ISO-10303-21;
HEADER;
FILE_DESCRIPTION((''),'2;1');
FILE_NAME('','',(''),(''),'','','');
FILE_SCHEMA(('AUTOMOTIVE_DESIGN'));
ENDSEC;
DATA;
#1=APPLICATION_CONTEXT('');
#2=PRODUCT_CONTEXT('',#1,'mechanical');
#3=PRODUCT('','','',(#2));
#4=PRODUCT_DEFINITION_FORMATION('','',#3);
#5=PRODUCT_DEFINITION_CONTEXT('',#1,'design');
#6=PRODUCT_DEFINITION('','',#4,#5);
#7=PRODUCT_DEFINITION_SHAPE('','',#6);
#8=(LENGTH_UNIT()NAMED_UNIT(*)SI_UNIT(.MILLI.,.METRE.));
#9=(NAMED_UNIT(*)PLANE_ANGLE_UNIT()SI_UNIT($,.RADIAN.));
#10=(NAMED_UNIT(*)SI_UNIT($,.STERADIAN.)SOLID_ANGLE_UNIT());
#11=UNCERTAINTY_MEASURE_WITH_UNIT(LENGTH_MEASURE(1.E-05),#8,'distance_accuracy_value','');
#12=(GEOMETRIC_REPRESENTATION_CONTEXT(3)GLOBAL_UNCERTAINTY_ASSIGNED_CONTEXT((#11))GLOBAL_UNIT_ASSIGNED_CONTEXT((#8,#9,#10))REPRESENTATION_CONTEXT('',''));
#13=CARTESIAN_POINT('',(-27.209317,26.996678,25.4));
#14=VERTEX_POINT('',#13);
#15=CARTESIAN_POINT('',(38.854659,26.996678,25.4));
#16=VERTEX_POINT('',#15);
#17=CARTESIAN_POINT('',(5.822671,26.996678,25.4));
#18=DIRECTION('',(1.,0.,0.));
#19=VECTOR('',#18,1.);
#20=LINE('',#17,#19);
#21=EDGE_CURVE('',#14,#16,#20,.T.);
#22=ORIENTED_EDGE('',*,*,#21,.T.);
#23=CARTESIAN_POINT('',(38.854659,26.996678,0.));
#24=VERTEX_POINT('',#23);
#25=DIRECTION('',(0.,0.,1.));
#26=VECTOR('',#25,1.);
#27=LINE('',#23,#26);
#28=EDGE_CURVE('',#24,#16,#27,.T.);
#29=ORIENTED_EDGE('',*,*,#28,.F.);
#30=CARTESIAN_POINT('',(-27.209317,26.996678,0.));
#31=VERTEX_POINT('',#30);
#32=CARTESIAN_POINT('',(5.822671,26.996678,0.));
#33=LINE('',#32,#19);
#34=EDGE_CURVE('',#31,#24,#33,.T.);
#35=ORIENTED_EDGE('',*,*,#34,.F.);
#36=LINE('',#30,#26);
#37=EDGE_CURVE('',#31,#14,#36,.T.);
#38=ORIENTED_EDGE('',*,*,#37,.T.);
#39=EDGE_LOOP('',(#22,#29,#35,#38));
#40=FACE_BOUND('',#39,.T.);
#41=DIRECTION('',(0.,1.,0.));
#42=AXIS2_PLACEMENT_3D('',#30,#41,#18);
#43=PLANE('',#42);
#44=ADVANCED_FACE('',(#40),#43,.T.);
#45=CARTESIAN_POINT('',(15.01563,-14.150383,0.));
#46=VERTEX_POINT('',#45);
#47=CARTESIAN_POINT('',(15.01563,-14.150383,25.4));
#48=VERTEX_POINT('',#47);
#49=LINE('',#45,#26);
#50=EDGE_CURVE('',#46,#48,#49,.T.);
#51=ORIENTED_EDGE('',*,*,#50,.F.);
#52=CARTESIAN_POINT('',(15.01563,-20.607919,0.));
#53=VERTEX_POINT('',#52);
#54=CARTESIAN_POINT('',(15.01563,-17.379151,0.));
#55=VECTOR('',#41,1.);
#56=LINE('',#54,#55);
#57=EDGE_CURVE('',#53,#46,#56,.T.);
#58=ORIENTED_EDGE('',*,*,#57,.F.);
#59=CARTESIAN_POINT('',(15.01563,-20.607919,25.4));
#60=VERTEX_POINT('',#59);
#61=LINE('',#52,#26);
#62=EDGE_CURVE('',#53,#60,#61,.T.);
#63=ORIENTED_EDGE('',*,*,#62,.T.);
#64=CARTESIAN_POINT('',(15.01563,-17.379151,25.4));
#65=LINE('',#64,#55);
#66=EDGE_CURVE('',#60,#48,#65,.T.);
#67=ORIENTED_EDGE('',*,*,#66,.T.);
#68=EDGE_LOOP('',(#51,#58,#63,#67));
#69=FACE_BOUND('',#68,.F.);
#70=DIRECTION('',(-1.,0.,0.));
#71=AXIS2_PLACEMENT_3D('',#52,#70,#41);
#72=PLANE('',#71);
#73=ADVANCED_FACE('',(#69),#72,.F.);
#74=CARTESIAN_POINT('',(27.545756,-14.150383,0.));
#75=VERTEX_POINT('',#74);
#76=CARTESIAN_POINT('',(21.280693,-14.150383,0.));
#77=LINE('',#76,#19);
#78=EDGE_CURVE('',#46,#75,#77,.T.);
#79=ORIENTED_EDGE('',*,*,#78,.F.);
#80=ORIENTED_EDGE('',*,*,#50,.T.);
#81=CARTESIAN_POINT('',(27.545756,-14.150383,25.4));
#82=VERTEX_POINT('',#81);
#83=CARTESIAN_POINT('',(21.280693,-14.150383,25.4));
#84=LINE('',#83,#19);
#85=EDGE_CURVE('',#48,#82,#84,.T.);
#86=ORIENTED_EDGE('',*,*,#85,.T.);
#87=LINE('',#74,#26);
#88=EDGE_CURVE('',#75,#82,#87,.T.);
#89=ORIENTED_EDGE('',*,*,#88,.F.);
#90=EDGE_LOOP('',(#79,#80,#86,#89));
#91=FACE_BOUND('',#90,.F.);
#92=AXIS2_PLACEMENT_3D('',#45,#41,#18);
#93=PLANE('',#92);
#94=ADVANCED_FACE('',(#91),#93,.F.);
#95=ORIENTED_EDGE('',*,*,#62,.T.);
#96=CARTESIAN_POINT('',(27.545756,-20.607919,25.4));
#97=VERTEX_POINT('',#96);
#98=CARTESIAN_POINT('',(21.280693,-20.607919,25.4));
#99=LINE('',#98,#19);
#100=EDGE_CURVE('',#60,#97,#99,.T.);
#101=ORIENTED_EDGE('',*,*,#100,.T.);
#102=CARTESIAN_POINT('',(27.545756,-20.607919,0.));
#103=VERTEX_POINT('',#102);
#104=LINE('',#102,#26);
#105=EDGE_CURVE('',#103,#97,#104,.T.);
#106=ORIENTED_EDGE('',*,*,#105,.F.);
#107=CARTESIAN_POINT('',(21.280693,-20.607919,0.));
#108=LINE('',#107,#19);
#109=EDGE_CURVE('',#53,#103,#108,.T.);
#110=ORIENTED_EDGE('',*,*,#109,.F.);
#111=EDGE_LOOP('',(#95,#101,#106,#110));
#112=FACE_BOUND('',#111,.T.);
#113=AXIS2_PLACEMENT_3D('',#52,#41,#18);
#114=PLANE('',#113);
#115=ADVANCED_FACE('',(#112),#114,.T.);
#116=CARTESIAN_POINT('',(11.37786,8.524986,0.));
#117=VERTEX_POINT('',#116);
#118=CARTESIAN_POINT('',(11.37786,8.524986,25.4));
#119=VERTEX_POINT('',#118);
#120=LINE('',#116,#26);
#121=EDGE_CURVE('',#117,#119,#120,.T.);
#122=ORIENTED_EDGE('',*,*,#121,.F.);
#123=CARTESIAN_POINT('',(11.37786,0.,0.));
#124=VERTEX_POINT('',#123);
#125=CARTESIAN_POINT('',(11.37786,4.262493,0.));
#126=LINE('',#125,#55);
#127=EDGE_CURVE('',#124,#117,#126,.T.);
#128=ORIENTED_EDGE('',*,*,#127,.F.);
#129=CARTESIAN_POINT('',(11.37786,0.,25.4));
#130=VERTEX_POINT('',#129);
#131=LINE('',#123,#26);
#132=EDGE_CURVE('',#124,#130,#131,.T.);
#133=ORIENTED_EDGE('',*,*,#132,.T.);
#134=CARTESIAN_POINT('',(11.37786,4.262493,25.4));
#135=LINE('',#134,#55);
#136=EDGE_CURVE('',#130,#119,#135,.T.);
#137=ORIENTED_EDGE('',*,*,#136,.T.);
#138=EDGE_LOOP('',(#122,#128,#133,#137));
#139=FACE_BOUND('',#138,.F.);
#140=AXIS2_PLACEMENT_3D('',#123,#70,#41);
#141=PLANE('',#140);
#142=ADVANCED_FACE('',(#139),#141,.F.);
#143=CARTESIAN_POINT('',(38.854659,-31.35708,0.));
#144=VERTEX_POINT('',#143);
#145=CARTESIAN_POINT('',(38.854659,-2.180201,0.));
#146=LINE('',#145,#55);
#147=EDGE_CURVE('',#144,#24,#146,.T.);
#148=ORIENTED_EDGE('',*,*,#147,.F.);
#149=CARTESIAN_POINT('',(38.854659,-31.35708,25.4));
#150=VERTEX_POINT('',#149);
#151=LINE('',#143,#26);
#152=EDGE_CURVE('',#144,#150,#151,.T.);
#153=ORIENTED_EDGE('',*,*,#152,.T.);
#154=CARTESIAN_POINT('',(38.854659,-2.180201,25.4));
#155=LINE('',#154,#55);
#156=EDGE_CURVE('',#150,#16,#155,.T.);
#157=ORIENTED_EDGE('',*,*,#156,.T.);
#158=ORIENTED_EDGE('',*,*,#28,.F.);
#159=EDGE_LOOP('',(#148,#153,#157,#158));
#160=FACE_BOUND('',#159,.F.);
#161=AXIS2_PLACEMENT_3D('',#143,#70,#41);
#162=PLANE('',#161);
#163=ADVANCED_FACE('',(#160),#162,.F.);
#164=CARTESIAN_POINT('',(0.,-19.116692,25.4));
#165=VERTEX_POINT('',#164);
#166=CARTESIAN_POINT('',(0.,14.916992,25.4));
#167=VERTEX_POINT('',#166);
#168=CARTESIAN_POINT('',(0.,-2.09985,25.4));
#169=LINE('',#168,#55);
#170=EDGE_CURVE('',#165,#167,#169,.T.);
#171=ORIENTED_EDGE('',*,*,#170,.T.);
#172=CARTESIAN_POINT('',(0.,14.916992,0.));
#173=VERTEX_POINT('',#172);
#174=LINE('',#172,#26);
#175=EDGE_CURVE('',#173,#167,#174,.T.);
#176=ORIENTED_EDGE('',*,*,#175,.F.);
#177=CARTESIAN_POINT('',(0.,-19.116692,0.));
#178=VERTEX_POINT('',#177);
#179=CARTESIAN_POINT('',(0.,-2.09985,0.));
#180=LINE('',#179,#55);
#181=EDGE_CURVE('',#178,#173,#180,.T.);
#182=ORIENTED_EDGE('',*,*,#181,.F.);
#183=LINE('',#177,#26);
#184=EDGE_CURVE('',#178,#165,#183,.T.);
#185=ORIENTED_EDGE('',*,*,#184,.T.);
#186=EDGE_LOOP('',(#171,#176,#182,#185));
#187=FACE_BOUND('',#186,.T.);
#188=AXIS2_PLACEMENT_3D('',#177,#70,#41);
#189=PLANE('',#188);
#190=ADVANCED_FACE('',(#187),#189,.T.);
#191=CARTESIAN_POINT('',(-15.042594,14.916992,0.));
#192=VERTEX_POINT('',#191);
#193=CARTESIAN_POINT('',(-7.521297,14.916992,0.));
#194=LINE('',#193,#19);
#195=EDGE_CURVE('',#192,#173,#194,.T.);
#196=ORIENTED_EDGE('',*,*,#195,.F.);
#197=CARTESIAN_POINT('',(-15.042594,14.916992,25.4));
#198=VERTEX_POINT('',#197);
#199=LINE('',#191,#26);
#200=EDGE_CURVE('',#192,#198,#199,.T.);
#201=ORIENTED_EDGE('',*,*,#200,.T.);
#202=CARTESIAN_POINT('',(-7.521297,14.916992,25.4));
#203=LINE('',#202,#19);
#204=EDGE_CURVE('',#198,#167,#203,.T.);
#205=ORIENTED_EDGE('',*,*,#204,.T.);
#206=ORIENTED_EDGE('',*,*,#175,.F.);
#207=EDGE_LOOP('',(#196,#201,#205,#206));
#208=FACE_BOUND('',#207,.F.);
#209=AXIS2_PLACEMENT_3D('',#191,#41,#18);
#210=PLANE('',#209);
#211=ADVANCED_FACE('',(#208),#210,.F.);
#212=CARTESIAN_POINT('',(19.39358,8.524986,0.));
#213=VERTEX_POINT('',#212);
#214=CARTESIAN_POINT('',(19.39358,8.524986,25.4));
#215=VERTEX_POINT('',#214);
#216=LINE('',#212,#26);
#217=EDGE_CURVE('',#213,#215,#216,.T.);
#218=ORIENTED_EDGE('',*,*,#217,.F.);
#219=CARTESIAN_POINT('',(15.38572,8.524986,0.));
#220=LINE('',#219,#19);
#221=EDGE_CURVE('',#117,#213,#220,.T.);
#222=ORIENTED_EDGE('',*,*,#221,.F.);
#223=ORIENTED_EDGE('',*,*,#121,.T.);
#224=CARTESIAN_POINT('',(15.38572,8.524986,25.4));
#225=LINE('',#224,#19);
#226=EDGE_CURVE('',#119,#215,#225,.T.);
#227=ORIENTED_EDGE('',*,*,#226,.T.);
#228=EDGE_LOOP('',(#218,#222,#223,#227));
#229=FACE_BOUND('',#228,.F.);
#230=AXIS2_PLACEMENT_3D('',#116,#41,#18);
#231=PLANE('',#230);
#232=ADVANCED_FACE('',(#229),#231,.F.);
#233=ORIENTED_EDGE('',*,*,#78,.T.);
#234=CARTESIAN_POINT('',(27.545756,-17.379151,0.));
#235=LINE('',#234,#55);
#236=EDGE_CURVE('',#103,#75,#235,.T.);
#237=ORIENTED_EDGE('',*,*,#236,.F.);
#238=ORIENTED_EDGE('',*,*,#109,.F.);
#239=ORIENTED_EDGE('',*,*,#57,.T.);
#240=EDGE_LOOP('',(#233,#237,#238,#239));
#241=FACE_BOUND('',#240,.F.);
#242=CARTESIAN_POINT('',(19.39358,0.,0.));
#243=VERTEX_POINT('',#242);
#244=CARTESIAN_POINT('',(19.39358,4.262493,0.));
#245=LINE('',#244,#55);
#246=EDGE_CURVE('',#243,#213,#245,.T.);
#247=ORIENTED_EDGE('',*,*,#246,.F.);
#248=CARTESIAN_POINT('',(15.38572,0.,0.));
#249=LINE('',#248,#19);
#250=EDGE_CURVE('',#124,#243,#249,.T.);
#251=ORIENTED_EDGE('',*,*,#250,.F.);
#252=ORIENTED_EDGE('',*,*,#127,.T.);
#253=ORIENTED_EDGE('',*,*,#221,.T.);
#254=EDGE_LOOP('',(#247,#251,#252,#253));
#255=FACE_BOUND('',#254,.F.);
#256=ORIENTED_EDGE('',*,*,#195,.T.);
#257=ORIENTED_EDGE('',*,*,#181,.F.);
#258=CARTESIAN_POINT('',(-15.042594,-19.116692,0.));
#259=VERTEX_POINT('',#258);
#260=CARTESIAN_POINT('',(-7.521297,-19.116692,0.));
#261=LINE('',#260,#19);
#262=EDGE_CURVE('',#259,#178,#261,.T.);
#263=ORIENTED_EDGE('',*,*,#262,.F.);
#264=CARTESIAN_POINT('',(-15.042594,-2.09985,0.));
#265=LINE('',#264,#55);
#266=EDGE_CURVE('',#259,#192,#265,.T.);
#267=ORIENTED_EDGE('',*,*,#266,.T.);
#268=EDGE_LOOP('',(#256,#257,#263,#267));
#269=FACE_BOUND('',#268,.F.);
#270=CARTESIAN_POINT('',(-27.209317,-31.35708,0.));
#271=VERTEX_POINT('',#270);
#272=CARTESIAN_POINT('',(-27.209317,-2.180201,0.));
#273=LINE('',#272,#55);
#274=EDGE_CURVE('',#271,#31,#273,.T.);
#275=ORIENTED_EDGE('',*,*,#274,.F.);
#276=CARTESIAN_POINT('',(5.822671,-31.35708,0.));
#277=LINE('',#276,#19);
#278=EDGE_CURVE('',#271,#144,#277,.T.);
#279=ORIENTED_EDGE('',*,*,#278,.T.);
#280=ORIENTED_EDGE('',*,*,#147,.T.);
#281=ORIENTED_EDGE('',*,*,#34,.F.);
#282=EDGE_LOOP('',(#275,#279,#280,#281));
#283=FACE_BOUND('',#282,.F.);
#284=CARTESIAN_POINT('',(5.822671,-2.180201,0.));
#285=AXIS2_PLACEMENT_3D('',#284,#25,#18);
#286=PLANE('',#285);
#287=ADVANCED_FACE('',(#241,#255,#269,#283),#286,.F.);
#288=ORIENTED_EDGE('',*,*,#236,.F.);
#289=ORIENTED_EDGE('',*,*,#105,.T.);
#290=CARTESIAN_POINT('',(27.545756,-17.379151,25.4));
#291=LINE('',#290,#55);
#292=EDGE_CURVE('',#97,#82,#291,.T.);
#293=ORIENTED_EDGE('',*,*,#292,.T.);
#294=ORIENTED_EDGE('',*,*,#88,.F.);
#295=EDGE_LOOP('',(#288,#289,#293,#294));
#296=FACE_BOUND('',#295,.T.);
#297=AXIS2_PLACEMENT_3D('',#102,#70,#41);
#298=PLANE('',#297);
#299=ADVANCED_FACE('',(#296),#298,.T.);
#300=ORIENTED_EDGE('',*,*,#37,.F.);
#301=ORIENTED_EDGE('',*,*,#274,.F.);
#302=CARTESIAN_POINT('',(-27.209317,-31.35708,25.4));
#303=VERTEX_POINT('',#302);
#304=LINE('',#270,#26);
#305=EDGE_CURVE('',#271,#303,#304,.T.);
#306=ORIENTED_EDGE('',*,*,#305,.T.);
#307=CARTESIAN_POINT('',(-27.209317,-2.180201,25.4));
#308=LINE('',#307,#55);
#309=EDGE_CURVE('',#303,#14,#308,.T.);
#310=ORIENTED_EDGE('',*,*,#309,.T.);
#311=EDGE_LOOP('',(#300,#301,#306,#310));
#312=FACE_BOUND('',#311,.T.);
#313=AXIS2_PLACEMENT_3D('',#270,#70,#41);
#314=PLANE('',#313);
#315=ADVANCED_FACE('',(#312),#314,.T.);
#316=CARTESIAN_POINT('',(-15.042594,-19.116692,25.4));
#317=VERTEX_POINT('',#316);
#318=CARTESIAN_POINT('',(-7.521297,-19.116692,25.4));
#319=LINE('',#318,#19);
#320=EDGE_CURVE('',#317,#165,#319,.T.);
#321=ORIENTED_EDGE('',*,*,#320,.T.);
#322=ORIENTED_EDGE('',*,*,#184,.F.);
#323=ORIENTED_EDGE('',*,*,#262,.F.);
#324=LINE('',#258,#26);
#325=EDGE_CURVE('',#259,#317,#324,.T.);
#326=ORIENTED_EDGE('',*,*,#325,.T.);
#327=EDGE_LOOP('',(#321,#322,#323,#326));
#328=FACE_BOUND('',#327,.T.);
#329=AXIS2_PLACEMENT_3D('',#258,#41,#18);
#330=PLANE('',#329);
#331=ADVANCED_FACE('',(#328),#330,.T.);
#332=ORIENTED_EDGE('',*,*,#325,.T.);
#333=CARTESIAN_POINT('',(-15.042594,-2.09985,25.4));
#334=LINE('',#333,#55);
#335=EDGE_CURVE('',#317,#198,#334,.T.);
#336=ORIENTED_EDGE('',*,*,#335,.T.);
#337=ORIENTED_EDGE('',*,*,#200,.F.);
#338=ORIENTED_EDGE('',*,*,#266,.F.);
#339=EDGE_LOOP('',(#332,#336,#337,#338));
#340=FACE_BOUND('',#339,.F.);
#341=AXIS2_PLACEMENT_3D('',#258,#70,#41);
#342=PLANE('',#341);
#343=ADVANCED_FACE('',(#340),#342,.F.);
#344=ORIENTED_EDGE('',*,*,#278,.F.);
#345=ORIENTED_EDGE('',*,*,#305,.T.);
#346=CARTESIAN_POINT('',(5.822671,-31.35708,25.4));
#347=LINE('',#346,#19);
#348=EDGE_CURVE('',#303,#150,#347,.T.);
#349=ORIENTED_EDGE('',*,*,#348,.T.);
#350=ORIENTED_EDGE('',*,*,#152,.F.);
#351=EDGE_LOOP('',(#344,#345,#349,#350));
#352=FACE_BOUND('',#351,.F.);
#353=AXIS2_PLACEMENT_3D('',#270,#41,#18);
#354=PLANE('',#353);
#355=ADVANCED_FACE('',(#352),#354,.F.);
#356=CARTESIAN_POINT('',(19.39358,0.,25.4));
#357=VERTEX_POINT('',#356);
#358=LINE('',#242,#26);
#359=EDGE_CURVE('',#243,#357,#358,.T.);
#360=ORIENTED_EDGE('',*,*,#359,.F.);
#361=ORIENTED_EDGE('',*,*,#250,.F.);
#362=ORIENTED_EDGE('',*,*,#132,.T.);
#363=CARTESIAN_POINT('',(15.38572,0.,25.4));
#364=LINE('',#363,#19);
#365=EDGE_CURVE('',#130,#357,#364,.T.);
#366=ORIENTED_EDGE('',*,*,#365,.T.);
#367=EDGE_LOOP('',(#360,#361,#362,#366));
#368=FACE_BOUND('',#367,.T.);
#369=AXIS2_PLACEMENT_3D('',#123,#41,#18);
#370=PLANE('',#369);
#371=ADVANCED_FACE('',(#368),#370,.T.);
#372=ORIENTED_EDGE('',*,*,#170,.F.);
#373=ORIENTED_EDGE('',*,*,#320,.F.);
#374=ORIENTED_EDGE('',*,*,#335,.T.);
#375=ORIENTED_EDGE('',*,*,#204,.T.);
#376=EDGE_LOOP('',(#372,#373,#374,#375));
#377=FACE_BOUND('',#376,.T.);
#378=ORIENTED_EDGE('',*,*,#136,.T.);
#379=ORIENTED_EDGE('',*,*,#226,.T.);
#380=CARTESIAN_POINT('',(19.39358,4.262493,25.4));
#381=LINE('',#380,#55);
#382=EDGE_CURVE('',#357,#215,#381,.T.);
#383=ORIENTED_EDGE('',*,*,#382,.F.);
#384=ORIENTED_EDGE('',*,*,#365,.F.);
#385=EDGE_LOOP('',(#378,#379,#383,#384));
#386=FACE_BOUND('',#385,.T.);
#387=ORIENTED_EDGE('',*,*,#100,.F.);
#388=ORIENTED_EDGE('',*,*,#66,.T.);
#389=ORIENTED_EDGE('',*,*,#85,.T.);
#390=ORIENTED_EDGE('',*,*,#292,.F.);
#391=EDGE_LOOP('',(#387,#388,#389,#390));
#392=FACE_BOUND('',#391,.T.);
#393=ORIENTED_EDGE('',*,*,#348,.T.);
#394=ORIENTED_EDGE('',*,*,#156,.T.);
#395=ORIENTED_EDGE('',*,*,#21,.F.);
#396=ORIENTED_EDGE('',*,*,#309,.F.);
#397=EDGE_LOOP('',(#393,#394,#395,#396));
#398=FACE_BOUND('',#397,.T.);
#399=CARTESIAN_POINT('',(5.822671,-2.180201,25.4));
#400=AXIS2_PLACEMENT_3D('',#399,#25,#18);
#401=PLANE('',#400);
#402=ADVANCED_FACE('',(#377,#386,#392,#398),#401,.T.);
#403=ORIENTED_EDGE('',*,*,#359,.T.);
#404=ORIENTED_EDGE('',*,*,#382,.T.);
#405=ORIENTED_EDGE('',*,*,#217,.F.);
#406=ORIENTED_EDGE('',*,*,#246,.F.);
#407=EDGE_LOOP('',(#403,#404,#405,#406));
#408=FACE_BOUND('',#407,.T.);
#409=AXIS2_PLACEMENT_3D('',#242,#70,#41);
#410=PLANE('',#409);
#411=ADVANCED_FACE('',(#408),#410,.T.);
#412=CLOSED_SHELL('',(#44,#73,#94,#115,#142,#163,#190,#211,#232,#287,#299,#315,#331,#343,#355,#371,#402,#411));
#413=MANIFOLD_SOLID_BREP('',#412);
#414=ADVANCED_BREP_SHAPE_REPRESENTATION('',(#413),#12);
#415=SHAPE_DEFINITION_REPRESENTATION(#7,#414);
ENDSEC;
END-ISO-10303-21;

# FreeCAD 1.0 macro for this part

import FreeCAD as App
import Part
import Sketcher
Q = App.Units.Quantity


def add_polygon(sketch, points):
    """Adds a closed chain of lines whose ends are joined by coincident constraints."""
    first, n = sketch.GeometryCount, len(points)
    for a, b in zip(points, points[1:] + points[:1]):
        sketch.addGeometry(Part.LineSegment(App.Vector(*a, 0), App.Vector(*b, 0)), False)
    for i in range(n):
        sketch.addConstraint(Sketcher.Constraint("Coincident", first + i, 2, first + (i + 1) % n, 1))

doc = App.newDocument("Part")
body = doc.addObject("PartDesign::Body", "Body")

sketch1 = body.newObject("Sketcher::SketchObject", "Sketch")
sketch1.AttachmentSupport = (doc.getObject("XY_Plane"), [""])
sketch1.MapMode = "FlatFace"
add_polygon(sketch1, [(-27, 27), (-27, -31), (39, -31), (39, 27)])
add_polygon(sketch1, [(28, -21), (15, -21), (15, -14), (28, -14)])
add_polygon(sketch1, [(0, -19), (-15, -19), (-15, 15), (0, 15)])
add_polygon(sketch1, [(19, 0), (11, 0), (11, 9), (19, 9)])
sketch1.addConstraint(Sketcher.Constraint("Vertical", 0))
sketch1.addConstraint(Sketcher.Constraint("Horizontal", 1))
sketch1.addConstraint(Sketcher.Constraint("Vertical", 2))
sketch1.addConstraint(Sketcher.Constraint("Horizontal", 3))
sketch1.addConstraint(Sketcher.Constraint("Horizontal", 4))
sketch1.addConstraint(Sketcher.Constraint("Vertical", 5))
sketch1.addConstraint(Sketcher.Constraint("Horizontal", 6))
sketch1.addConstraint(Sketcher.Constraint("Vertical", 7))
sketch1.addConstraint(Sketcher.Constraint("Horizontal", 8))
sketch1.addConstraint(Sketcher.Constraint("Vertical", 9))
sketch1.addConstraint(Sketcher.Constraint("Horizontal", 10))
sketch1.addConstraint(Sketcher.Constraint("Vertical", 11))
sketch1.addConstraint(Sketcher.Constraint("Horizontal", 12))
sketch1.addConstraint(Sketcher.Constraint("Vertical", 13))
sketch1.addConstraint(Sketcher.Constraint("Horizontal", 14))
sketch1.addConstraint(Sketcher.Constraint("Vertical", 15))
sketch1.addConstraint(Sketcher.Constraint("PointOnObject", 10, 2, -2))
sketch1.addConstraint(Sketcher.Constraint("PointOnObject", 12, 2, -1))
sketch1.addConstraint(Sketcher.Constraint("DistanceX", 12, 2, 12, 1, 8.01572))
sketch1.addConstraint(Sketcher.Constraint("DistanceX", 1, 1, 1, 2, 66.063976))
sketch1.addConstraint(Sketcher.Constraint("DistanceX", 4, 2, 4, 1, 12.530126))
sketch1.addConstraint(Sketcher.Constraint("DistanceX", 8, 2, 8, 1, 15.042593))
sketch1.addConstraint(Sketcher.Constraint("DistanceY", 0, 2, 0, 1, 58.353758))
sketch1.addConstraint(Sketcher.Constraint("DistanceY", 5, 1, 5, 2, 6.457536))
sketch1.addConstraint(Sketcher.Constraint("DistanceY", 9, 1, 9, 2, 34.033684))
sketch1.addConstraint(Sketcher.Constraint("DistanceY", 13, 1, 13, 2, 8.524986))
sketch1.addConstraint(Sketcher.Constraint("DistanceY", 0, 2, -1, 1, 31.35708))
sketch1.addConstraint(Sketcher.Constraint("DistanceX", -1, 1, 1, 2, 38.854659))
sketch1.addConstraint(Sketcher.Constraint("DistanceX", -1, 1, 4, 2, 15.01563))
sketch1.addConstraint(Sketcher.Constraint("DistanceY", 4, 2, -1, 1, 20.607919))
sketch1.addConstraint(Sketcher.Constraint("DistanceX", -1, 1, 12, 2, 11.37786))
sketch1.addConstraint(Sketcher.Constraint("DistanceY", 8, 2, 5, 2, 4.966309))
pad1 = body.newObject("PartDesign::Pad", "Pad")
pad1.Profile = sketch1
pad1.Length = Q("1 in")

doc.recompute()
